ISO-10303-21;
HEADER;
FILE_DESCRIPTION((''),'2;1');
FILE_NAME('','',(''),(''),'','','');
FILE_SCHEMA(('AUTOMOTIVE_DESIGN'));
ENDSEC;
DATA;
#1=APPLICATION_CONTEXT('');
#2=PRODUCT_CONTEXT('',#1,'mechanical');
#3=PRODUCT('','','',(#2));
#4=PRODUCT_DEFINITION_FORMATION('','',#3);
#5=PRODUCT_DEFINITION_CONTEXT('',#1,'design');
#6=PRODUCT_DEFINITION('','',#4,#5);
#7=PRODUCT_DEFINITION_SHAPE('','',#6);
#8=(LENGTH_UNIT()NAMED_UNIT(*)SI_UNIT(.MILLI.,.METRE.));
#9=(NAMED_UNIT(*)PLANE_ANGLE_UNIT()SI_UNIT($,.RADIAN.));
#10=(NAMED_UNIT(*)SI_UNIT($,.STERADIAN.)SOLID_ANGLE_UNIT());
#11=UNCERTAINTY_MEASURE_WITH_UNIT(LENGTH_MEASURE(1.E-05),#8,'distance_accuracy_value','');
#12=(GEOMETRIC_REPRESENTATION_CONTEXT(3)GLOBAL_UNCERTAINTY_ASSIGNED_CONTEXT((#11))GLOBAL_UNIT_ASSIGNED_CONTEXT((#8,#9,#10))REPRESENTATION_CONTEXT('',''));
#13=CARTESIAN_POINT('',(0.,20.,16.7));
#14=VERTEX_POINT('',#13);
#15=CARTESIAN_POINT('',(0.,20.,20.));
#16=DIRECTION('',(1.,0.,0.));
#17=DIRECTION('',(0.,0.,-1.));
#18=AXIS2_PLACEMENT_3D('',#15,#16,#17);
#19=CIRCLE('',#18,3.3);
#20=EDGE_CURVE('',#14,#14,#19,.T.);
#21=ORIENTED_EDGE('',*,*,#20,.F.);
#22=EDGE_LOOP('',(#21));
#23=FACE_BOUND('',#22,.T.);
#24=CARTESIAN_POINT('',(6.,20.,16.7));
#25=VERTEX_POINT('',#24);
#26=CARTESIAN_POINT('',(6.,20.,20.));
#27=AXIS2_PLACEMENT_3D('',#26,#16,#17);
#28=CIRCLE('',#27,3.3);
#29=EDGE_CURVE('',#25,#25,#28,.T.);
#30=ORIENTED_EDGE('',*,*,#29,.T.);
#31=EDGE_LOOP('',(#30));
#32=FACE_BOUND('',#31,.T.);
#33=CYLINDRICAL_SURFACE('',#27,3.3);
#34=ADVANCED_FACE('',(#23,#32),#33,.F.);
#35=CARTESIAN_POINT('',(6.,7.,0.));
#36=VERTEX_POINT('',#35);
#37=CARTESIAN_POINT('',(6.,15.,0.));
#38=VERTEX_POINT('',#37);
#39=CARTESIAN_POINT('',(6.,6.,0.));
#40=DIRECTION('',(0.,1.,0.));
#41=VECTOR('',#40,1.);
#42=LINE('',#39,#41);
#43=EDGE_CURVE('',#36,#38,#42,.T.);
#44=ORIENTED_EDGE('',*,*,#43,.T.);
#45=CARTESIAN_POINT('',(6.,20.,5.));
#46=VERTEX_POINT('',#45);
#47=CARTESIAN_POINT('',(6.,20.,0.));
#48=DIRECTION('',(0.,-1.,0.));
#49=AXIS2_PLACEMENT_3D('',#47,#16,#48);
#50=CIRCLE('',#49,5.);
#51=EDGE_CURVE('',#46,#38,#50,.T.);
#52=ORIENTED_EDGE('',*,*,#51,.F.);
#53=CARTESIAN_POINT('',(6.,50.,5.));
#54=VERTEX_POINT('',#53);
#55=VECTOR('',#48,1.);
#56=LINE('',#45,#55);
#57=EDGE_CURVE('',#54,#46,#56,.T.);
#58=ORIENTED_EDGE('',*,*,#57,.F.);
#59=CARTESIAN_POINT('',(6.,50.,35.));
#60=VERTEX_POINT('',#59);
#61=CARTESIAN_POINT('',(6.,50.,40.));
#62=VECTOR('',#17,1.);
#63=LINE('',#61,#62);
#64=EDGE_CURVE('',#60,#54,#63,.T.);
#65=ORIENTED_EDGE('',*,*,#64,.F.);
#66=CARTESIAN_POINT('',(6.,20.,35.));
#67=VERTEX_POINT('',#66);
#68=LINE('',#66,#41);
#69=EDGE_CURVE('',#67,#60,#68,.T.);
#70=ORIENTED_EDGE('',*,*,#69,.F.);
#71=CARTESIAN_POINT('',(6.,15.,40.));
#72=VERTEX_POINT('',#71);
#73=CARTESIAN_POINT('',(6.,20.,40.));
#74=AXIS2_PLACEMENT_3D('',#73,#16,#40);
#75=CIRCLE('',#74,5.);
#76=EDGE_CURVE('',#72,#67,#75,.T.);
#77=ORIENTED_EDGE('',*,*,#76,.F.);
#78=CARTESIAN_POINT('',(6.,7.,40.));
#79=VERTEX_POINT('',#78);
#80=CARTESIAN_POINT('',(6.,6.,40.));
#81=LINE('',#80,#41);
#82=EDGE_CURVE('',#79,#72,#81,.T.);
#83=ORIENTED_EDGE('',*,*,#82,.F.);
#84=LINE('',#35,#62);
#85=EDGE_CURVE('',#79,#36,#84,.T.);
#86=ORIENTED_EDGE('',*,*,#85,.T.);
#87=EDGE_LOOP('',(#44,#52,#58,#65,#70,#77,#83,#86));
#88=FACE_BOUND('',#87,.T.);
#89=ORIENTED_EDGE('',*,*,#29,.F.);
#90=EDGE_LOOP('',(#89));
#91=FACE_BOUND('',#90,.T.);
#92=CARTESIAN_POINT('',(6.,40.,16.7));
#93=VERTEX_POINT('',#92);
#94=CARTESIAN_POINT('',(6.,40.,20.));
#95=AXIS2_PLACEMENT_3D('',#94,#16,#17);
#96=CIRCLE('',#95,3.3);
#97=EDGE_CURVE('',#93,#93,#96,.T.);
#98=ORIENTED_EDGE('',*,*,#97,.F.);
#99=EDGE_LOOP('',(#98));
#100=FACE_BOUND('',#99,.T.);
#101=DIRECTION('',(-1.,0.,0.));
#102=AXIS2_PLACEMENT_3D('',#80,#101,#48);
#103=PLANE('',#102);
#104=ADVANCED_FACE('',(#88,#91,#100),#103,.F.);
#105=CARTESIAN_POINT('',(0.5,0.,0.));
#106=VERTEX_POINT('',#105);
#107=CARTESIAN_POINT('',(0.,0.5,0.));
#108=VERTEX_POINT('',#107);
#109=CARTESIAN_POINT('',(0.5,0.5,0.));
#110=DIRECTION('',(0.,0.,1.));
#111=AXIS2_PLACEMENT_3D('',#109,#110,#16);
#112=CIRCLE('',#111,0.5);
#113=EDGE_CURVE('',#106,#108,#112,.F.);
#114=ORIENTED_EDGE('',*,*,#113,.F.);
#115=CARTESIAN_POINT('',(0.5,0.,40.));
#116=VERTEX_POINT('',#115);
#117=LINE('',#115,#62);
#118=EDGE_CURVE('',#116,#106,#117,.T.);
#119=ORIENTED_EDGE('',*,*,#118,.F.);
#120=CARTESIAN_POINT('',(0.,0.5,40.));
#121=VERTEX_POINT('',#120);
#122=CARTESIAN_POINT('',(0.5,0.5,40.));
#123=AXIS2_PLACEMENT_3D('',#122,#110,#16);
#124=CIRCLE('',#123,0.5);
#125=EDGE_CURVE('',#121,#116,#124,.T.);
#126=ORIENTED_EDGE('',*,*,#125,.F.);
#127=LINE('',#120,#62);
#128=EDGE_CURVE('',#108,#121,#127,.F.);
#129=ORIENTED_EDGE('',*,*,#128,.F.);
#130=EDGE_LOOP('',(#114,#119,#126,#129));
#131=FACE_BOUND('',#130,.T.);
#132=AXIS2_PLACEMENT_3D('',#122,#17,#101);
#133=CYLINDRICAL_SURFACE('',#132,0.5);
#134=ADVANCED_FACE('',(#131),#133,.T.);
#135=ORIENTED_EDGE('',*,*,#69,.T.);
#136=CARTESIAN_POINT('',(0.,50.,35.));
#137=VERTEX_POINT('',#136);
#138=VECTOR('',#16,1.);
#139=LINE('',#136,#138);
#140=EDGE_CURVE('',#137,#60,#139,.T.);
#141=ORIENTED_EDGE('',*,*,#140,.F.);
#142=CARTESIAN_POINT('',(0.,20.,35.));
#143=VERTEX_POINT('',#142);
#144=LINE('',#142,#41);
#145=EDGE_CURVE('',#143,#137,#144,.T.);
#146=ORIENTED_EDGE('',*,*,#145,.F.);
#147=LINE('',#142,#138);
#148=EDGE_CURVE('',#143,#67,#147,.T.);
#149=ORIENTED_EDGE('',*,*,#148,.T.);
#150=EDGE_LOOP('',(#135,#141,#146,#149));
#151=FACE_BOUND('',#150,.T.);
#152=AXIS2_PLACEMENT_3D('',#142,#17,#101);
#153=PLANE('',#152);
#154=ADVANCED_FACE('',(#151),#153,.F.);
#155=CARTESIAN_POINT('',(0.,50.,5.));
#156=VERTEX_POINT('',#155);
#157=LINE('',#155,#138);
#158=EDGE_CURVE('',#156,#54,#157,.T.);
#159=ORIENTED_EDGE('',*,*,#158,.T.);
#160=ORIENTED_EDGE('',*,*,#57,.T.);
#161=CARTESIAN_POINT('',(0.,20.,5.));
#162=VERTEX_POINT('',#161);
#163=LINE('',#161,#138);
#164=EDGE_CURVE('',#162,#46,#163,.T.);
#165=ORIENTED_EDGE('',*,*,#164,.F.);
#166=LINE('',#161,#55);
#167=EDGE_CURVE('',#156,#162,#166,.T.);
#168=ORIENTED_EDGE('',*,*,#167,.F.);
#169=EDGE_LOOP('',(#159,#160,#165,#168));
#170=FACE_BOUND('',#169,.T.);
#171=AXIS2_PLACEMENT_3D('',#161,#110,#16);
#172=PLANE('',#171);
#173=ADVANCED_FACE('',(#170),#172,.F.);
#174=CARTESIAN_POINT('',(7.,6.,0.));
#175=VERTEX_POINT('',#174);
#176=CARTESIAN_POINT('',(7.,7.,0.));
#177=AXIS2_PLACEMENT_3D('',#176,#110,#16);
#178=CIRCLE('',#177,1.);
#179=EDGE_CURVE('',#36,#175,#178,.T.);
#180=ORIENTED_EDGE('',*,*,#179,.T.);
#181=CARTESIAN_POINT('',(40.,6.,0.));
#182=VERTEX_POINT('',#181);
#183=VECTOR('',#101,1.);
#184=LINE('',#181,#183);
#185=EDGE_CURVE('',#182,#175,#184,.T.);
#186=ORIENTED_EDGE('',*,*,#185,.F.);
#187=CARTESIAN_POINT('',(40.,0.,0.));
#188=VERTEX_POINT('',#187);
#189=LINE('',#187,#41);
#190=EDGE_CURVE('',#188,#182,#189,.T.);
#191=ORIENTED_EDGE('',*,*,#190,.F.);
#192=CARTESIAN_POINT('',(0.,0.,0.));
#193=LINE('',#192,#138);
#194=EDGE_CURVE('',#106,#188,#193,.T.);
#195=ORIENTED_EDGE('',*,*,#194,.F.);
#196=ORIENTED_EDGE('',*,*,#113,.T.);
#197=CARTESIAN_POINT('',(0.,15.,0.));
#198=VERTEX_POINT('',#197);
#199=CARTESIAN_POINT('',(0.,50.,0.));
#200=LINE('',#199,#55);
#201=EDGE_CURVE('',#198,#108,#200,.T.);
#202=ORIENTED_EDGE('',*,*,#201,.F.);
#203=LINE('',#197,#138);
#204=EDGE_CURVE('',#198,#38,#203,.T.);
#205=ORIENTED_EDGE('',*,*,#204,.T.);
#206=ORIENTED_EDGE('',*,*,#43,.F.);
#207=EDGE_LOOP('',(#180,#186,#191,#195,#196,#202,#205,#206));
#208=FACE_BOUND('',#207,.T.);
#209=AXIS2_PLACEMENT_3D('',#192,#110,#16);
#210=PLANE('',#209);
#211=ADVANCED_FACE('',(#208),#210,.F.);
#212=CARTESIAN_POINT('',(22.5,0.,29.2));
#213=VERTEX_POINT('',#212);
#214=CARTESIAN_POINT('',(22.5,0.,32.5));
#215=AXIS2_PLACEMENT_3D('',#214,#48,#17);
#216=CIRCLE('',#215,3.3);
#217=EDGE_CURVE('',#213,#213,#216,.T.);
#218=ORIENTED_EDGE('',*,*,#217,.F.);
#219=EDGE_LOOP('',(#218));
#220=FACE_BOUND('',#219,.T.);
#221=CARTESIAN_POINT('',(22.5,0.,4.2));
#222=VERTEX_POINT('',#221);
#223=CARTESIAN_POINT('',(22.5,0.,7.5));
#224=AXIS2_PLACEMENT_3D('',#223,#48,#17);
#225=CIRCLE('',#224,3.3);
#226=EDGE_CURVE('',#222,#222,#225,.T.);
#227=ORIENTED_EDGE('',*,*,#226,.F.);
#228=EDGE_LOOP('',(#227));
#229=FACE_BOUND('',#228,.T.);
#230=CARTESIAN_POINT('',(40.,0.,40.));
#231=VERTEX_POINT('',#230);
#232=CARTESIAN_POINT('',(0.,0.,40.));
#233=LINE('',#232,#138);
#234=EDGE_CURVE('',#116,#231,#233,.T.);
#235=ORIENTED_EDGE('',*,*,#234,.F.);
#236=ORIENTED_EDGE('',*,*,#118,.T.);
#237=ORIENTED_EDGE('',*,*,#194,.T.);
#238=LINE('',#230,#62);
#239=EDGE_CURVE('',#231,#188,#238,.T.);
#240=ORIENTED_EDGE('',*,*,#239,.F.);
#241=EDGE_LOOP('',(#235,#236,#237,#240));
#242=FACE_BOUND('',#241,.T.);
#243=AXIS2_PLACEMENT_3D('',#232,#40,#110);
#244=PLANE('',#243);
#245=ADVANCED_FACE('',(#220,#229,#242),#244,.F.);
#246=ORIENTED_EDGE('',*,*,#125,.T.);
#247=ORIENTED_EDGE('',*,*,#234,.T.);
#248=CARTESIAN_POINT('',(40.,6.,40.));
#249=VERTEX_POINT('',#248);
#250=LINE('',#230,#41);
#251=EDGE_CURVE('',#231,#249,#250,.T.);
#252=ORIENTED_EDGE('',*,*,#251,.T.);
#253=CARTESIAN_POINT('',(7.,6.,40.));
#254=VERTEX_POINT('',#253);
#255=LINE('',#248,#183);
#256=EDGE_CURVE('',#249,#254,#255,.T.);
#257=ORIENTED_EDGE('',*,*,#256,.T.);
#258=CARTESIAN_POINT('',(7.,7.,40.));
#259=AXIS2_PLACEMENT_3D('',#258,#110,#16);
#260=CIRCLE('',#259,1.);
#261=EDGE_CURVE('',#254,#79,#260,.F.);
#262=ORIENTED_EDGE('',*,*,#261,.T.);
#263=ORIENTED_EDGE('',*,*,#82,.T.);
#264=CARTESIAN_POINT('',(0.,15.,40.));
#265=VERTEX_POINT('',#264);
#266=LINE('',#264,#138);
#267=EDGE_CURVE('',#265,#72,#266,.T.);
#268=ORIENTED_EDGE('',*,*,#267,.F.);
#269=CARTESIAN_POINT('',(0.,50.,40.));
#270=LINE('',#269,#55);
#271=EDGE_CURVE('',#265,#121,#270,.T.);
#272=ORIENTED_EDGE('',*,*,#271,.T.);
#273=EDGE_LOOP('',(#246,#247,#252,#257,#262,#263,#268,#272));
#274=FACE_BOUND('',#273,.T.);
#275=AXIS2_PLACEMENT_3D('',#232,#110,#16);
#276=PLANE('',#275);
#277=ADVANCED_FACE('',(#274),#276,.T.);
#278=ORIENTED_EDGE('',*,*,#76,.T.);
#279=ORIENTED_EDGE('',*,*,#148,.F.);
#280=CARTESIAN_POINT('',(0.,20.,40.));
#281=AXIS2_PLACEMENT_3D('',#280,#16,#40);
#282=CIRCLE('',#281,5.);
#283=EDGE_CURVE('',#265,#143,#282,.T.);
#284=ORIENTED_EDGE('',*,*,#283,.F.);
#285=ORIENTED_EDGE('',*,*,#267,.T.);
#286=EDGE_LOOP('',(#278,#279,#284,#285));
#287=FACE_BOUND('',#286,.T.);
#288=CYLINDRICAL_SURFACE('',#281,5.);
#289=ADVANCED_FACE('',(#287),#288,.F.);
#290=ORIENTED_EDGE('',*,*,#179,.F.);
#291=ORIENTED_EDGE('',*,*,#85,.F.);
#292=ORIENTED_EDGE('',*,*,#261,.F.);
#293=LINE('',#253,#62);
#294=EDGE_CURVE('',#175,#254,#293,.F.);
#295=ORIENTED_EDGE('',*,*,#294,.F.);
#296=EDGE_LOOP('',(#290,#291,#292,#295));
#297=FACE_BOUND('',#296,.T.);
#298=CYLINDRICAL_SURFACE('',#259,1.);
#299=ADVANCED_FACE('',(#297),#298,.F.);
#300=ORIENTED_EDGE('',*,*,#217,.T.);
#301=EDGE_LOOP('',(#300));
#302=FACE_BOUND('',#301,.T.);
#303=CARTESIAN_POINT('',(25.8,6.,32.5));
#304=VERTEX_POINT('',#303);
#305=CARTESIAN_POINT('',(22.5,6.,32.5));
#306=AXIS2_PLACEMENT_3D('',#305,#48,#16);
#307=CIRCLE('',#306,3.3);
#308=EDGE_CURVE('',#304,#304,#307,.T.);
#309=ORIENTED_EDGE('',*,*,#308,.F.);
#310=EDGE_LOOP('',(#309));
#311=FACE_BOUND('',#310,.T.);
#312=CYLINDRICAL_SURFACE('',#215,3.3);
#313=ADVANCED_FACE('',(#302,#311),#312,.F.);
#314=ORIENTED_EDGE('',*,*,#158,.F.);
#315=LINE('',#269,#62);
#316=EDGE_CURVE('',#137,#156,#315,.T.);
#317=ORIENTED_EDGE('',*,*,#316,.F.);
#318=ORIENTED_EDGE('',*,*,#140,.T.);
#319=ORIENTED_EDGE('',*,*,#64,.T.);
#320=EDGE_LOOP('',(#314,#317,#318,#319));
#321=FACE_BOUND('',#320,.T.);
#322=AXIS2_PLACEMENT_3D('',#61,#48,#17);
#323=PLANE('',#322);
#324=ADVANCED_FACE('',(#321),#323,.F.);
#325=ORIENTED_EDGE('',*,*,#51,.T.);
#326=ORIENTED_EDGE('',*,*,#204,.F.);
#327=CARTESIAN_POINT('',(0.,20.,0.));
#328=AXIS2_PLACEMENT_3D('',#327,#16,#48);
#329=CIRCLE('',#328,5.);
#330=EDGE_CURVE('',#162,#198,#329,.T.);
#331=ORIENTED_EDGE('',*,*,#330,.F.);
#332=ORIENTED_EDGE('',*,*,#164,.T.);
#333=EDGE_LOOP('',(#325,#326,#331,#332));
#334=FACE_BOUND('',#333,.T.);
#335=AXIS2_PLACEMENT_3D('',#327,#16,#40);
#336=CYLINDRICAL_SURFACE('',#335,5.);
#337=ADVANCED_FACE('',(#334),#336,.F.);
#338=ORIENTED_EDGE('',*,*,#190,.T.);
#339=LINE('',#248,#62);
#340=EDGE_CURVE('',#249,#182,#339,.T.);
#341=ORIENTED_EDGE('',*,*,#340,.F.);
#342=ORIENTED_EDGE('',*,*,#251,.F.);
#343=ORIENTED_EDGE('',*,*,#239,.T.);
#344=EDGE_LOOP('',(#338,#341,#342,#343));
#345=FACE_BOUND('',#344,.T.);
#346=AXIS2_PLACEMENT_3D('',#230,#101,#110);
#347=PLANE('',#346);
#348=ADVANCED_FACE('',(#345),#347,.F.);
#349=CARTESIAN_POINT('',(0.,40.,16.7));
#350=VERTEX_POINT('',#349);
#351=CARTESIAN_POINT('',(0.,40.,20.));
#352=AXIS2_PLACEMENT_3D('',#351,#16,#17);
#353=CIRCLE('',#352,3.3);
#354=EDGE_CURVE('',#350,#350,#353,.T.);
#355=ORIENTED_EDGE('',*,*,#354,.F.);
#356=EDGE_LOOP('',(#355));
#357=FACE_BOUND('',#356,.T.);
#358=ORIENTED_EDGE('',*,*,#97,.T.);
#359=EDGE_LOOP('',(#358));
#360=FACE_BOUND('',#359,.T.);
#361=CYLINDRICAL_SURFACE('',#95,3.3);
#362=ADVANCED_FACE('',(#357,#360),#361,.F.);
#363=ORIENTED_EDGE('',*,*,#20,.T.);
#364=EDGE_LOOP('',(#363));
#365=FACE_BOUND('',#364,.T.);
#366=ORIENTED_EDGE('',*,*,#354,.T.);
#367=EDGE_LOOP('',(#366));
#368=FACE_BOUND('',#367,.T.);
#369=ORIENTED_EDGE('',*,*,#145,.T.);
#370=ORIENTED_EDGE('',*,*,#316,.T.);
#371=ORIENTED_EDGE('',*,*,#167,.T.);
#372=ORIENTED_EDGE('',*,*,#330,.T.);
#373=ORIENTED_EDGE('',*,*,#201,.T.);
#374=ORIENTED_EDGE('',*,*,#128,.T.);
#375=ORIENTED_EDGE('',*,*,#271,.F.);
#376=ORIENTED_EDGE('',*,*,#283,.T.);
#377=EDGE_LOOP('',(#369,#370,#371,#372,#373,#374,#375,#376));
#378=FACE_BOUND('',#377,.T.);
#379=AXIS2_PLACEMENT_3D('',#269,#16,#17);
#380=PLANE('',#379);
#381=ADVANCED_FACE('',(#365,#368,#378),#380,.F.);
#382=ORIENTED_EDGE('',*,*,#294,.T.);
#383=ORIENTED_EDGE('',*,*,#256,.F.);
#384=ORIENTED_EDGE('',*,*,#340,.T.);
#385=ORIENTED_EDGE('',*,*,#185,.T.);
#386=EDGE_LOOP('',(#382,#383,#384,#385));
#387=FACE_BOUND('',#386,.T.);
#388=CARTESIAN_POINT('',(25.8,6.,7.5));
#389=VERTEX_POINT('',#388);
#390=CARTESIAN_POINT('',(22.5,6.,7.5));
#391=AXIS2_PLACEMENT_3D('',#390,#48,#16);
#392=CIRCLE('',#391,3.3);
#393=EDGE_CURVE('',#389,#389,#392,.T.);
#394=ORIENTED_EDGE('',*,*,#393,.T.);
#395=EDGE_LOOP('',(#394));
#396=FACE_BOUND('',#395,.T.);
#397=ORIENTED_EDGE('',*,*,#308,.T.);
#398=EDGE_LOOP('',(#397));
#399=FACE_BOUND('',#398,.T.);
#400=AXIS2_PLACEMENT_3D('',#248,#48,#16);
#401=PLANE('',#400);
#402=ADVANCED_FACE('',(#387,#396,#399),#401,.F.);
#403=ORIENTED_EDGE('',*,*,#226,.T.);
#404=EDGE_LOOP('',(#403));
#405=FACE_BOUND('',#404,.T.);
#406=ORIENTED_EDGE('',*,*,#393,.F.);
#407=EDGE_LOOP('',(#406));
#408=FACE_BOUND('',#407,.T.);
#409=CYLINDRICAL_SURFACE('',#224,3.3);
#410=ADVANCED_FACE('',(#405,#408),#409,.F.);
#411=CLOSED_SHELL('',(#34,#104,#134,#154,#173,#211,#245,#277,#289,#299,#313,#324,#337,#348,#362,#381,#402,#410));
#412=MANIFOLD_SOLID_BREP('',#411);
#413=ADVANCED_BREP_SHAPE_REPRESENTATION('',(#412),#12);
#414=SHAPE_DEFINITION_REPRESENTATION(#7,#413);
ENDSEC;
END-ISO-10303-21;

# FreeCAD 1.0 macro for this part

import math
import FreeCAD as App
import Part
import Sketcher

V = App.Vector


def edges_at(feature, points):
    """Names of the edges that pass closest to the given points."""
    edges = feature.Shape.Edges
    near = lambda p: min(range(len(edges)), key=lambda i: edges[i].distToShape(Part.Vertex(*p))[0])
    return sorted({f"Edge{near(p) + 1}" for p in points})


def add_polygon(sketch, points):
    """Adds a closed chain of lines whose ends are joined by coincident constraints."""
    first, n = sketch.GeometryCount, len(points)
    for a, b in zip(points, points[1:] + points[:1]):
        sketch.addGeometry(Part.LineSegment(App.Vector(*a, 0), App.Vector(*b, 0)), False)
    for i in range(n):
        sketch.addConstraint(Sketcher.Constraint("Coincident", first + i, 2, first + (i + 1) % n, 1))

doc = App.newDocument("Part")
params = doc.addObject("Spreadsheet::Sheet", "Params")
for row, (alias, value) in enumerate([
    ("sketch1_width", "40 mm"),
    ("sketch1_width2", "34 mm"),
    ("sketch1_height", "44 mm"),
    ("pad1_length", "40 mm"),
    ("sketch2_diameter", "6.6 mm"),
    ("hole_diameter", "6.6 mm"),
    ("sketch3_diameter", "6.6 mm"),
    ("hole2_diameter", "6.6 mm"),
    ("fillet_radius", "1 mm"),
    ("fillet2_radius", "0.5 mm"),
    ("sketch4_radius", "5 mm"),
    ("sketch4_width", "30 mm"),
], start=1):
    params.set(f"A{row}", alias)
    params.set(f"B{row}", "=" + value)
    params.setAlias(f"B{row}", alias)

body = doc.addObject("PartDesign::Body", "Body")

# Sketch on XY plane
sketch1 = body.newObject("Sketcher::SketchObject", "Sketch")
sketch1.AttachmentSupport = (doc.getObject("XY_Plane"), [""])
sketch1.MapMode = "FlatFace"
add_polygon(sketch1, [(0, 0), (40, 0), (40, 6), (6, 6), (6, 50), (0, 50)])  # lines 0-5
sketch1.addConstraint([
    Sketcher.Constraint("Horizontal", 0),
    Sketcher.Constraint("Vertical", 1),
    Sketcher.Constraint("Horizontal", 2),
    Sketcher.Constraint("Vertical", 3),
    Sketcher.Constraint("Horizontal", 4),
    Sketcher.Constraint("Vertical", 5),
    Sketcher.Constraint("Coincident", 5, 2, -1, 1),
    Sketcher.Constraint("Equal", 4, 1),
    Sketcher.Constraint("DistanceX", 0, 1, 0, 2, 40.0),
    Sketcher.Constraint("DistanceX", 2, 2, 2, 1, 34.0),
    Sketcher.Constraint("DistanceY", 3, 1, 3, 2, 44.0),
])
sketch1.setExpression("Constraints[14]", "Params.sketch1_width")
sketch1.setExpression("Constraints[15]", "Params.sketch1_width2")
sketch1.setExpression("Constraints[16]", "Params.sketch1_height")
pad1 = body.newObject("PartDesign::Pad", "Pad")
pad1.Profile = sketch1
pad1.setExpression("Length", "Params.pad1_length")

# Sketch on YZ plane
sketch2 = body.newObject("Sketcher::SketchObject", "Sketch001")
sketch2.AttachmentSupport = (doc.getObject("YZ_Plane"), [""])
sketch2.MapMode = "FlatFace"
sketch2.AttachmentOffset = App.Placement(V(0, 0, 6), App.Rotation())
sketch2.addGeometry([
    Part.Circle(V(40, 20, 0), V(0, 0, 1), 3.3),
    Part.Circle(V(20, 20, 0), V(0, 0, 1), 3.3),
], False)
sketch2.addConstraint([
    Sketcher.Constraint("Equal", 0, 1),
    Sketcher.Constraint("Horizontal", 0, 3, 1, 3),
    Sketcher.Constraint("Diameter", 0, 6.6),
    Sketcher.Constraint("DistanceX", -1, 1, 0, 3, 40.0),
    Sketcher.Constraint("DistanceY", -1, 1, 0, 3, 20.0),
    Sketcher.Constraint("DistanceX", -1, 1, 1, 3, 20.0),
])
sketch2.setExpression("Constraints[2]", "Params.sketch2_diameter")
doc.recompute()
hole = body.newObject("PartDesign::Hole", "Hole")
hole.Profile = sketch2
hole.ThreadType = "None"
hole.setExpression("Diameter", "Params.hole_diameter")
hole.DepthType = "ThroughAll"

# Sketch on XZ plane
sketch3 = body.newObject("Sketcher::SketchObject", "Sketch002")
sketch3.AttachmentSupport = (doc.getObject("XZ_Plane"), [""])
sketch3.MapMode = "FlatFace"
sketch3.addGeometry([
    Part.Circle(V(22.5, 32.5, 0), V(0, 0, 1), 3.3),
    Part.Circle(V(22.5, 7.5, 0), V(0, 0, 1), 3.3),
], False)
sketch3.addConstraint([
    Sketcher.Constraint("Equal", 0, 1),
    Sketcher.Constraint("Vertical", 0, 3, 1, 3),
    Sketcher.Constraint("Diameter", 0, 6.6),
    Sketcher.Constraint("DistanceY", 1, 3, 0, 3, 25.0),
    Sketcher.Constraint("DistanceX", -1, 1, 0, 3, 22.5),
    Sketcher.Constraint("DistanceY", -1, 1, 0, 3, 32.5),
])
sketch3.setExpression("Constraints[2]", "Params.sketch3_diameter")
doc.recompute()
hole2 = body.newObject("PartDesign::Hole", "Hole001")
hole2.Profile = sketch3
hole2.ThreadType = "None"
hole2.setExpression("Diameter", "Params.hole2_diameter")
hole2.DepthType = "ThroughAll"
doc.recompute()

fillet = body.newObject("PartDesign::Fillet", "Fillet")
fillet.Base = (hole2, edges_at(hole2, [(6, 6, 20)]))
fillet.setExpression("Radius", "Params.fillet_radius")
doc.recompute()

fillet2 = body.newObject("PartDesign::Fillet", "Fillet001")
fillet2.Base = (fillet, edges_at(fillet, [(0, 0, 20)]))
fillet2.setExpression("Radius", "Params.fillet2_radius")

# Sketch on YZ plane
sketch4 = body.newObject("Sketcher::SketchObject", "Sketch003")
sketch4.AttachmentSupport = (doc.getObject("YZ_Plane"), [""])
sketch4.MapMode = "FlatFace"
sketch4.AttachmentOffset = App.Placement(V(0, 0, 6), App.Rotation())
sketch4.addGeometry([
    Part.LineSegment(V(50, 0, 0), V(50, 5, 0)),  # 0
    Part.LineSegment(V(50, 5, 0), V(20, 5, 0)),  # 1
    Part.ArcOfCircle(Part.Circle(V(20, 0, 0), V(0, 0, 1), 5), math.radians(90), math.radians(180)),  # 2
    Part.LineSegment(V(15, 0, 0), V(50, 0, 0)),  # 3
    Part.LineSegment(V(20, 35, 0), V(50, 35, 0)),  # 4
    Part.LineSegment(V(50, 35, 0), V(50, 40, 0)),  # 5
    Part.LineSegment(V(50, 40, 0), V(15, 40, 0)),  # 6
    Part.ArcOfCircle(Part.Circle(V(20, 40, 0), V(0, 0, 1), 5), math.radians(180), math.radians(270)),  # 7
], False)
sketch4.addConstraint([
    Sketcher.Constraint("Coincident", 0, 2, 1, 1),
    Sketcher.Constraint("Tangent", 1, 2, 2, 1),
    Sketcher.Constraint("Coincident", 2, 2, 3, 1),
    Sketcher.Constraint("Coincident", 3, 2, 0, 1),
    Sketcher.Constraint("Coincident", 4, 2, 5, 1),
    Sketcher.Constraint("Coincident", 5, 2, 6, 1),
    Sketcher.Constraint("Coincident", 6, 2, 7, 1),
    Sketcher.Constraint("Tangent", 7, 2, 4, 1),
    Sketcher.Constraint("Vertical", 0),
    Sketcher.Constraint("Horizontal", 1),
    Sketcher.Constraint("Horizontal", 3),
    Sketcher.Constraint("Horizontal", 4),
    Sketcher.Constraint("Vertical", 5),
    Sketcher.Constraint("Horizontal", 6),
    Sketcher.Constraint("Equal", 2, 7),
    Sketcher.Constraint("PointOnObject", 2, 3, -1),
    Sketcher.Constraint("PointOnObject", 2, 2, -1),
    Sketcher.Constraint("Horizontal", 7, 3, 5, 2),
    Sketcher.Constraint("Vertical", 2, 3, 7, 3),
    Sketcher.Constraint("Vertical", 3, 2, 4, 2),
    Sketcher.Constraint("Radius", 2, 5.0),
    Sketcher.Constraint("DistanceX", 1, 2, 1, 1, 30.0),
    Sketcher.Constraint("DistanceX", -1, 1, 2, 3, 20.0),
    Sketcher.Constraint("DistanceY", -1, 1, 7, 3, 40.0),
])
sketch4.setExpression("Constraints[20]", "Params.sketch4_radius")
sketch4.setExpression("Constraints[21]", "Params.sketch4_width")
pocket1 = body.newObject("PartDesign::Pocket", "Pocket")
pocket1.Profile = sketch4
pocket1.Type = "ThroughAll"

doc.recompute()
